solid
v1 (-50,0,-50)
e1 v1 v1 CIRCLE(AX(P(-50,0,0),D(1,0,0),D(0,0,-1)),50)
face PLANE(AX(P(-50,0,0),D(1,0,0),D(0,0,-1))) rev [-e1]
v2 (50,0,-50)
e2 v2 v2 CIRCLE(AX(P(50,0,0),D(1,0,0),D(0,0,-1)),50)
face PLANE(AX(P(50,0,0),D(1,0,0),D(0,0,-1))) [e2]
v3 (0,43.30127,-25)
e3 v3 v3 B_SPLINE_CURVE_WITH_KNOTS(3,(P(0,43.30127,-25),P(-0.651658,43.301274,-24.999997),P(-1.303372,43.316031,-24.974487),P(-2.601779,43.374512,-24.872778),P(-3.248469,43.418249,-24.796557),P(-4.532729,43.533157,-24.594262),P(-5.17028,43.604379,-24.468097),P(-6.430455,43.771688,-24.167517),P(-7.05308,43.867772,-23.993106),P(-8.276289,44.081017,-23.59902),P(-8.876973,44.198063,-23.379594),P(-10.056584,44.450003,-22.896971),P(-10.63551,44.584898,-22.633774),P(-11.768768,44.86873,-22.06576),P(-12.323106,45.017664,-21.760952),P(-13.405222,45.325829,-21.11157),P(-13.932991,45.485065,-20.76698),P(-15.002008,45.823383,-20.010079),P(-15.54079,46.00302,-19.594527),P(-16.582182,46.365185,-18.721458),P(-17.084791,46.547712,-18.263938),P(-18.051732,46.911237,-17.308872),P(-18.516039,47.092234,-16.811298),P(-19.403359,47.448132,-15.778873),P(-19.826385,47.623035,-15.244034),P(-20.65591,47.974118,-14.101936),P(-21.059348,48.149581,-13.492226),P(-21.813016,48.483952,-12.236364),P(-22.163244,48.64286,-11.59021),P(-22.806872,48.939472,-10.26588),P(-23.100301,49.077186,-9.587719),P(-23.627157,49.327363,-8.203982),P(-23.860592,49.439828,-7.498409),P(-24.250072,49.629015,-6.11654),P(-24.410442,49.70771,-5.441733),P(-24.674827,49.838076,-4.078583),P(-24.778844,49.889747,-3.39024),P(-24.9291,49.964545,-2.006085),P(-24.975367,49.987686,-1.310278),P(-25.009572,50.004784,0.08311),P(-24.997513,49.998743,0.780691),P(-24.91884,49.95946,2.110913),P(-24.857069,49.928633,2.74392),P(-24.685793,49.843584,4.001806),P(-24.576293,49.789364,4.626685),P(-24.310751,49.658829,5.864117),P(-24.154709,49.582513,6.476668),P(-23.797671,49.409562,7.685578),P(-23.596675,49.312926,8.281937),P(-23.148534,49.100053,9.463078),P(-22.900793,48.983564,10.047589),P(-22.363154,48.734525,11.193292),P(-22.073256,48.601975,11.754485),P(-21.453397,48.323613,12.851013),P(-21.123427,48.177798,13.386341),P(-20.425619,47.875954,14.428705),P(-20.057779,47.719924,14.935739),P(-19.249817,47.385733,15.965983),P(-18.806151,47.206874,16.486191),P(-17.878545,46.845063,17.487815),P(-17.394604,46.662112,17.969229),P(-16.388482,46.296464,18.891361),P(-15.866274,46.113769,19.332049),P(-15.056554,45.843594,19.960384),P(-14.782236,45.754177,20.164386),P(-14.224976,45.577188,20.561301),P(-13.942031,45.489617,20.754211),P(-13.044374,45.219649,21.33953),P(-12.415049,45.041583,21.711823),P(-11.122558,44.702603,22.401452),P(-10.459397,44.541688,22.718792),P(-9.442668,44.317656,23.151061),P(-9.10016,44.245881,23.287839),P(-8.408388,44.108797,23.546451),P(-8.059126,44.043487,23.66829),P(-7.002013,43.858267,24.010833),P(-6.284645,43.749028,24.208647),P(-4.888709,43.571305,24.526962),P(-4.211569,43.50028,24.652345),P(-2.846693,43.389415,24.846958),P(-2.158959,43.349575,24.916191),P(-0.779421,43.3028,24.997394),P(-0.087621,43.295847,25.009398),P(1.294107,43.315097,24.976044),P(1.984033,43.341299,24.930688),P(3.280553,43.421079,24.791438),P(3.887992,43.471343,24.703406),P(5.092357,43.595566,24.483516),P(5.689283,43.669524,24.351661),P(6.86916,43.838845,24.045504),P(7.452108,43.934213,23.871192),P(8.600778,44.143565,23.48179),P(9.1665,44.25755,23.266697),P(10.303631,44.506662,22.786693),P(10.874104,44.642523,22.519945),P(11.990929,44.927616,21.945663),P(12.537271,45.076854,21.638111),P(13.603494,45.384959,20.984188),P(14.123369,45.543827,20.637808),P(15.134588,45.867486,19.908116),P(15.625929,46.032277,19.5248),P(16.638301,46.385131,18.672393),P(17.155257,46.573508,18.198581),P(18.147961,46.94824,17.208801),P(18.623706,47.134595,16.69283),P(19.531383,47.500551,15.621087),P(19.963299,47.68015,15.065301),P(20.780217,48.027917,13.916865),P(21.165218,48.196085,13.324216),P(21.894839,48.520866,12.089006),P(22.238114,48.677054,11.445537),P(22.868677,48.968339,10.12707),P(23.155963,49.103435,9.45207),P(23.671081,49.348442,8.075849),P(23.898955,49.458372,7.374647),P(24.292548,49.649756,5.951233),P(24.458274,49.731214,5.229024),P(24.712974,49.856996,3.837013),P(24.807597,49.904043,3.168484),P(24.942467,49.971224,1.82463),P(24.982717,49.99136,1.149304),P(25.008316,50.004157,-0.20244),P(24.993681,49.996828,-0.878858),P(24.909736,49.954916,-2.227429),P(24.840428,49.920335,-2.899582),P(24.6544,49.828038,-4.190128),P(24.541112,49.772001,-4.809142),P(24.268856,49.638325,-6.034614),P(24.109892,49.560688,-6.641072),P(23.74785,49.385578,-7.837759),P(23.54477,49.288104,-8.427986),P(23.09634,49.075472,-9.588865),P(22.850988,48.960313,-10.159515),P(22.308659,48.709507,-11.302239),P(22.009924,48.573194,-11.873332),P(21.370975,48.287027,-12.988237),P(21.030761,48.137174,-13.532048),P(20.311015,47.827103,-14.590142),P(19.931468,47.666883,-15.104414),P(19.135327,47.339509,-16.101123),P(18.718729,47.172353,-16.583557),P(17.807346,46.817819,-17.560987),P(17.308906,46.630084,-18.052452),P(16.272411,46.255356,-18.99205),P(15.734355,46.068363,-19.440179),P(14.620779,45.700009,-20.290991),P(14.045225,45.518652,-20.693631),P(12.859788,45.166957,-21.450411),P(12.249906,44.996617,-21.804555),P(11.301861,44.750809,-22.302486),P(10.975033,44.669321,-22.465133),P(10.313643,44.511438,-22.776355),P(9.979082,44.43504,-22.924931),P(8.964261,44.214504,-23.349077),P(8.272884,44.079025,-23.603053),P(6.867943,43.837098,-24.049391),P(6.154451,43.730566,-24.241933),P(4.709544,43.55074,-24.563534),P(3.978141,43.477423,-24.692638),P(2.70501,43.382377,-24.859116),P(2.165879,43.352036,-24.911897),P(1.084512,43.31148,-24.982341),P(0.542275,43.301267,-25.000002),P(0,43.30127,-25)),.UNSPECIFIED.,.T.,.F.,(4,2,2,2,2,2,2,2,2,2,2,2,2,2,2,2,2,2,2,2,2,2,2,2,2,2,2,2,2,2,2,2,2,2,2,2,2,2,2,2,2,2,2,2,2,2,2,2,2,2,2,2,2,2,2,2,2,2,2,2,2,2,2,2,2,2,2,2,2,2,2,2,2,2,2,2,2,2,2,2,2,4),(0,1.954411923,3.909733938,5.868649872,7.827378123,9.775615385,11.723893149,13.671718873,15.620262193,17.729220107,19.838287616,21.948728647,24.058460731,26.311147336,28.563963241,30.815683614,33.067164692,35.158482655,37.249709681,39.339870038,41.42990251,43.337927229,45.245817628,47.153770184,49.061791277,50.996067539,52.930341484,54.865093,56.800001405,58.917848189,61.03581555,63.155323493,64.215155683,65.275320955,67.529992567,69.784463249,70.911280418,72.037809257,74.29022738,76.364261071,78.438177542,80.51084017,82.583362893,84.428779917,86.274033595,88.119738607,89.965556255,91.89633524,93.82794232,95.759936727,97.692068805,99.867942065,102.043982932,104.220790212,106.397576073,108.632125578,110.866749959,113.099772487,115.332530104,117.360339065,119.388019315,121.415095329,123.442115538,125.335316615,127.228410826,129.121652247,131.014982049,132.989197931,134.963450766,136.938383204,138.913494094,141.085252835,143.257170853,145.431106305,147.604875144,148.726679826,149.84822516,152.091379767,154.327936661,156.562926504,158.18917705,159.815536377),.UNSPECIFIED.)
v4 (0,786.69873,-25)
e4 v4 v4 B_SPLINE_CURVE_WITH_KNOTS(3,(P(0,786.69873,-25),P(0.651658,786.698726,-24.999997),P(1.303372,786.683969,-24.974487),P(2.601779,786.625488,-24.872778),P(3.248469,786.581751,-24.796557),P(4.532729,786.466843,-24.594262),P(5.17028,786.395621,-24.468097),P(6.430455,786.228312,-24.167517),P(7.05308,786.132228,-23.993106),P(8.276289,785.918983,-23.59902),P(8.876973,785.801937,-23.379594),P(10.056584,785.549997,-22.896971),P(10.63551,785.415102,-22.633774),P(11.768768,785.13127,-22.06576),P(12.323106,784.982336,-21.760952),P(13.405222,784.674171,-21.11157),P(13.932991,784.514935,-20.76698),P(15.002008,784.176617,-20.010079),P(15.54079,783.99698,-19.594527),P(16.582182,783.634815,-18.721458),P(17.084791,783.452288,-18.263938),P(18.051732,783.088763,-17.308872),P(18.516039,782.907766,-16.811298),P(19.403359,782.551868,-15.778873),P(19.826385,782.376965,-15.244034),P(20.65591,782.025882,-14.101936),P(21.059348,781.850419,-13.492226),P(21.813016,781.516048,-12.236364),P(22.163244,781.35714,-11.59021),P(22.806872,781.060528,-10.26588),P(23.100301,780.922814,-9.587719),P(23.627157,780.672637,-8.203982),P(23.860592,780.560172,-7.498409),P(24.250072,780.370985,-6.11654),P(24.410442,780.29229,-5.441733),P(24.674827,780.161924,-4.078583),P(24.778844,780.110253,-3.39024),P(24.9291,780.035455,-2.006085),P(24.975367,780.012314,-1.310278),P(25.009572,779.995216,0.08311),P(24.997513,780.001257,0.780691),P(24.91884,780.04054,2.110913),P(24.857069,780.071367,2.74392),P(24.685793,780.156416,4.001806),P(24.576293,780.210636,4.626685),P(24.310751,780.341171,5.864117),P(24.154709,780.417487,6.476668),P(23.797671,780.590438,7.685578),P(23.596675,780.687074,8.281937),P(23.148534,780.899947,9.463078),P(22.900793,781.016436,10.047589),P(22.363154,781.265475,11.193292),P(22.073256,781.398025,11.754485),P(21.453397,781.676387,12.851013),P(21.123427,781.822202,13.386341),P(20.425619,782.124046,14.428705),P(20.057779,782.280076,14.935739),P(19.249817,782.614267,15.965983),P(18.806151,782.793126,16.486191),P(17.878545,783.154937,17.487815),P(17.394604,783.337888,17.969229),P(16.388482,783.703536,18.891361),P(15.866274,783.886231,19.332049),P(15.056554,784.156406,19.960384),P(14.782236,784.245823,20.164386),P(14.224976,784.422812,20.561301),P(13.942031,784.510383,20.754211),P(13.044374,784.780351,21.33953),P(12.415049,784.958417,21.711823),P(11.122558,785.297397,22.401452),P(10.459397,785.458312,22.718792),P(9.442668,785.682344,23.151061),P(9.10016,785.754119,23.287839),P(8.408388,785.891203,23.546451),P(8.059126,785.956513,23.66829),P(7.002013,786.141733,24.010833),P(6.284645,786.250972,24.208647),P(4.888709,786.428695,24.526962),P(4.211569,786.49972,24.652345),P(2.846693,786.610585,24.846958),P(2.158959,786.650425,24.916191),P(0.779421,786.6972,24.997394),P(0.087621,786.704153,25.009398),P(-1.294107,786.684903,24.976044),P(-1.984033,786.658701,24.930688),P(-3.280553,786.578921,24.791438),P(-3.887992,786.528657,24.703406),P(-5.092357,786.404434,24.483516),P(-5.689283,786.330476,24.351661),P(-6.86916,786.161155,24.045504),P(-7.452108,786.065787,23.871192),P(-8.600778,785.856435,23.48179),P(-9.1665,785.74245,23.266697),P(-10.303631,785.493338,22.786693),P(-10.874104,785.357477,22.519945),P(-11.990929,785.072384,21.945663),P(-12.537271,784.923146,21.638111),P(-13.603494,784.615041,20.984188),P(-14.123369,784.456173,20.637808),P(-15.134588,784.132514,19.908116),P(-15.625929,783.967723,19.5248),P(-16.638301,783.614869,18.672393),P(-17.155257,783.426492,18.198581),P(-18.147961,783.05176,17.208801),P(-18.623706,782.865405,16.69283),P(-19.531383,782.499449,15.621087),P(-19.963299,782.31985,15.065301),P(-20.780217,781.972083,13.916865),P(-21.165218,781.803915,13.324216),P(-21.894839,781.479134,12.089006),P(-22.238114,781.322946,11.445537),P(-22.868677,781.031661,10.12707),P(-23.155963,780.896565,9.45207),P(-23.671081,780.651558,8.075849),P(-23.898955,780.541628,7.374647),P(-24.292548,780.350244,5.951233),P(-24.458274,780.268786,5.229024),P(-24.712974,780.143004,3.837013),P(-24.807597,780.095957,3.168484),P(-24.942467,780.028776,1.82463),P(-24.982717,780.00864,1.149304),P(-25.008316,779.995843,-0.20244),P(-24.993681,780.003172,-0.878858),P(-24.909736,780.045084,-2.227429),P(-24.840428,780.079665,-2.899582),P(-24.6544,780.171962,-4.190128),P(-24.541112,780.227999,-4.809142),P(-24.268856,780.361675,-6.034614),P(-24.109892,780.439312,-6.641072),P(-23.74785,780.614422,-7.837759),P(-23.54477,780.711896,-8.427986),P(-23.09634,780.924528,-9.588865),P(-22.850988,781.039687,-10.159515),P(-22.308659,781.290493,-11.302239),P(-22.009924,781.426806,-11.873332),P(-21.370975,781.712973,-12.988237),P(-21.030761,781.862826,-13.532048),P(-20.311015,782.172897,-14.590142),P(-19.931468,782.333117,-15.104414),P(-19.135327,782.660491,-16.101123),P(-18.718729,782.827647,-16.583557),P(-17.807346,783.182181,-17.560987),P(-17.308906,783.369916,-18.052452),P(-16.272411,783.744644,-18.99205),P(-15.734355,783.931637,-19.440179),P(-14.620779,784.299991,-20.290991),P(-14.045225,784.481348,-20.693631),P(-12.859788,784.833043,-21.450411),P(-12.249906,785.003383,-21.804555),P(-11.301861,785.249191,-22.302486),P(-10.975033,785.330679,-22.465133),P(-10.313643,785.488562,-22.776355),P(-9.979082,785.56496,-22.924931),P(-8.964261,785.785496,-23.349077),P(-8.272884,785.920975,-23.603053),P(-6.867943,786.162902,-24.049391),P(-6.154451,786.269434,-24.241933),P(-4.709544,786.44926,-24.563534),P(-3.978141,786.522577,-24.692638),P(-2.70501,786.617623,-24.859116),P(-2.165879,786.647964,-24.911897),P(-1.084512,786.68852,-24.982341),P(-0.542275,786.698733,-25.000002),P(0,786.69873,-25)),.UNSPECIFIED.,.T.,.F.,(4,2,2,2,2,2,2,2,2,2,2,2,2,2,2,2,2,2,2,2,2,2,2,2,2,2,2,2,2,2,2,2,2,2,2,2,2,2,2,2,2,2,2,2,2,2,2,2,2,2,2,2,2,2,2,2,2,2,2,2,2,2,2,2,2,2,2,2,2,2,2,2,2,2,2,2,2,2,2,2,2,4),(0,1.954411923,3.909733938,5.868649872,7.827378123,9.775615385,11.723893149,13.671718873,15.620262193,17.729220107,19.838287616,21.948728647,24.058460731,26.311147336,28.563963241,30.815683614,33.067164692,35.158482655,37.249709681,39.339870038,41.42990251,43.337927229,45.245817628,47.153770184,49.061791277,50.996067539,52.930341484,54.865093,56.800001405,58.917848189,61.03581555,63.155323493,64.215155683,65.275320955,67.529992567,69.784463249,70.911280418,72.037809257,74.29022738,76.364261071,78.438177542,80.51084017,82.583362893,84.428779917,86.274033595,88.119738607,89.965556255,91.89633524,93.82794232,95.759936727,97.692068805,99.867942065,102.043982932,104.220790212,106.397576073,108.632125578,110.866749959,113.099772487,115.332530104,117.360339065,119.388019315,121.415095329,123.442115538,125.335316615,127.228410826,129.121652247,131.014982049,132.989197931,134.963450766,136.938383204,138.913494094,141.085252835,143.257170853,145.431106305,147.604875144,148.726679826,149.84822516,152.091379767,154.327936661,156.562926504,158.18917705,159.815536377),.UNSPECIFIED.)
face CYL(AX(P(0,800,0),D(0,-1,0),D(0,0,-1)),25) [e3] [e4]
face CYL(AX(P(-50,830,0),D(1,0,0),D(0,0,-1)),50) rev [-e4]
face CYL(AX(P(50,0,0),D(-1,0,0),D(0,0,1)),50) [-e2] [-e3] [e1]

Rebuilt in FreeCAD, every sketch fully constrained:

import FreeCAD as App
import Part
import Sketcher
from FreeCAD import Vector

doc = App.newDocument("Part")
params = doc.addObject("Spreadsheet::Sheet", "Params")
for row, (alias, value) in enumerate([
    ("sketch1_diameter", "100 mm"),
    ("pad1_length", "100 mm"),
    ("sketch2_diameter", "50 mm"),
    ("pad2_length", "800 mm"),
    ("sketch3_diameter", "100 mm"),
], start=1):
    params.set(f"A{row}", alias)
    params.set(f"B{row}", "=" + value)
    params.setAlias(f"B{row}", alias)

body = doc.addObject("PartDesign::Body", "Body")

sketch1 = doc.addObject("Sketcher::SketchObject", "Sketch")
body.addObject(sketch1)
sketch1.AttachmentSupport = (doc.YZ_Plane, [""])
sketch1.MapMode = "FlatFace"
sketch1.addGeometry(Part.Circle(Vector(0, 0, 0), Vector(0, 0, 1), 50), False)
sketch1.addConstraint(Sketcher.Constraint("Coincident", 0, 3, -1, 1))
sketch1.addConstraint(Sketcher.Constraint("Diameter", 0, 100.0))
sketch1.setExpression("Constraints[1]", "Params.sketch1_diameter")
pad1 = doc.addObject("PartDesign::Pad", "Pad")
body.addObject(pad1)
pad1.Profile = sketch1
pad1.setExpression("Length", "Params.pad1_length")
pad1.Midplane = True

sketch2 = doc.addObject("Sketcher::SketchObject", "Sketch001")
body.addObject(sketch2)
sketch2.AttachmentSupport = (doc.XZ_Plane, [""])
sketch2.MapMode = "FlatFace"
sketch2.addGeometry(Part.Circle(Vector(0, 0, 0), Vector(0, 0, 1), 25), False)
sketch2.addConstraint(Sketcher.Constraint("Coincident", 0, 3, -1, 1))
sketch2.addConstraint(Sketcher.Constraint("Diameter", 0, 50.0))
sketch2.setExpression("Constraints[1]", "Params.sketch2_diameter")
pad2 = doc.addObject("PartDesign::Pad", "Pad001")
body.addObject(pad2)
pad2.Profile = sketch2
pad2.setExpression("Length", "Params.pad2_length")
pad2.Reversed = True

sketch3 = doc.addObject("Sketcher::SketchObject", "Sketch002")
body.addObject(sketch3)
sketch3.AttachmentSupport = (doc.YZ_Plane, [""])
sketch3.MapMode = "FlatFace"
sketch3.addGeometry(Part.Circle(Vector(830, 0, 0), Vector(0, 0, 1), 50), False)
sketch3.addConstraint(Sketcher.Constraint("PointOnObject", 0, 3, -1))
sketch3.addConstraint(Sketcher.Constraint("Diameter", 0, 100.0))
sketch3.addConstraint(Sketcher.Constraint("DistanceX", -1, 1, 0, 3, 830.0))
sketch3.setExpression("Constraints[1]", "Params.sketch3_diameter")
pocket1 = doc.addObject("PartDesign::Pocket", "Pocket")
body.addObject(pocket1)
pocket1.Profile = sketch3
pocket1.Type = "ThroughAll"
pocket1.Midplane = True

doc.recompute()
